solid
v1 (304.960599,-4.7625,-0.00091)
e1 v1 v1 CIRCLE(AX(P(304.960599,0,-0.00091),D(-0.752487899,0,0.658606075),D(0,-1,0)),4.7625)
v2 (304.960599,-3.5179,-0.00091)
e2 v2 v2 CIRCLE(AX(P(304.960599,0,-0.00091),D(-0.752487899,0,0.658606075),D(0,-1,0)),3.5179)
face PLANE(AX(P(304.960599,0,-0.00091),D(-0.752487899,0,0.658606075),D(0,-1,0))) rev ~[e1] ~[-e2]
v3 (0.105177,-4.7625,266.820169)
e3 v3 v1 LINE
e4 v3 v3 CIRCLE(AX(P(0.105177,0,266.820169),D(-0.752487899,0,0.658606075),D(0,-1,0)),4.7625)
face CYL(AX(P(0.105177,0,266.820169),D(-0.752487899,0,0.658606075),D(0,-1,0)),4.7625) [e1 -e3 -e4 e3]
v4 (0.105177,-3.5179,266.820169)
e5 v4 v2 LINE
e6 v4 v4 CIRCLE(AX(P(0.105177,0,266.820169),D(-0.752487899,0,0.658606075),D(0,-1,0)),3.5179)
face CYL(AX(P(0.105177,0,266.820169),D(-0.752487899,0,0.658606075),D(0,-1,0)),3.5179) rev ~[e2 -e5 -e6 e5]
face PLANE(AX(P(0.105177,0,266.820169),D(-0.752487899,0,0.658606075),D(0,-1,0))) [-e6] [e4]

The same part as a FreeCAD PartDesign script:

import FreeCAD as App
import Part
import Sketcher

V = App.Vector
Q = App.Units.Quantity

doc = App.newDocument("Part")
body = doc.addObject("PartDesign::Body", "Body")

sketch1 = doc.addObject("Sketcher::SketchObject", "Sketch")
body.addObject(sketch1)
sketch1.Placement = App.Placement(V(-132.17468, 0, 115.684315), App.Rotation(V(0, -1, 0), V(0.658606075, 0, 0.752487899), V(-0.752487899, 0, 0.658606075), "ZXY"))
sketch1.addGeometry([
    Part.Circle(V(0, 200.8, 0), V(0, 0, 1), 4.8),
    Part.Circle(V(0, 200.8, 0), V(0, 0, 1), 3.5),
], False)
sketch1.addConstraint([
    Sketcher.Constraint("Coincident", 1, 3, 0, 3),
    Sketcher.Constraint("PointOnObject", 0, 3, -2),
    Sketcher.Constraint("Diameter", 0, Q("0.375 in")),
    Sketcher.Constraint("Diameter", 1, Q("0.277 in")),
    Sketcher.Constraint("DistanceY", -1, 1, 0, 3, Q("200.848218 mm")),
])
pad1 = doc.addObject("PartDesign::Pad", "Pad")
body.addObject(pad1)
pad1.Profile = sketch1
pad1.Length = Q("15.95 in")
pad1.Reversed = True

doc.recompute()
